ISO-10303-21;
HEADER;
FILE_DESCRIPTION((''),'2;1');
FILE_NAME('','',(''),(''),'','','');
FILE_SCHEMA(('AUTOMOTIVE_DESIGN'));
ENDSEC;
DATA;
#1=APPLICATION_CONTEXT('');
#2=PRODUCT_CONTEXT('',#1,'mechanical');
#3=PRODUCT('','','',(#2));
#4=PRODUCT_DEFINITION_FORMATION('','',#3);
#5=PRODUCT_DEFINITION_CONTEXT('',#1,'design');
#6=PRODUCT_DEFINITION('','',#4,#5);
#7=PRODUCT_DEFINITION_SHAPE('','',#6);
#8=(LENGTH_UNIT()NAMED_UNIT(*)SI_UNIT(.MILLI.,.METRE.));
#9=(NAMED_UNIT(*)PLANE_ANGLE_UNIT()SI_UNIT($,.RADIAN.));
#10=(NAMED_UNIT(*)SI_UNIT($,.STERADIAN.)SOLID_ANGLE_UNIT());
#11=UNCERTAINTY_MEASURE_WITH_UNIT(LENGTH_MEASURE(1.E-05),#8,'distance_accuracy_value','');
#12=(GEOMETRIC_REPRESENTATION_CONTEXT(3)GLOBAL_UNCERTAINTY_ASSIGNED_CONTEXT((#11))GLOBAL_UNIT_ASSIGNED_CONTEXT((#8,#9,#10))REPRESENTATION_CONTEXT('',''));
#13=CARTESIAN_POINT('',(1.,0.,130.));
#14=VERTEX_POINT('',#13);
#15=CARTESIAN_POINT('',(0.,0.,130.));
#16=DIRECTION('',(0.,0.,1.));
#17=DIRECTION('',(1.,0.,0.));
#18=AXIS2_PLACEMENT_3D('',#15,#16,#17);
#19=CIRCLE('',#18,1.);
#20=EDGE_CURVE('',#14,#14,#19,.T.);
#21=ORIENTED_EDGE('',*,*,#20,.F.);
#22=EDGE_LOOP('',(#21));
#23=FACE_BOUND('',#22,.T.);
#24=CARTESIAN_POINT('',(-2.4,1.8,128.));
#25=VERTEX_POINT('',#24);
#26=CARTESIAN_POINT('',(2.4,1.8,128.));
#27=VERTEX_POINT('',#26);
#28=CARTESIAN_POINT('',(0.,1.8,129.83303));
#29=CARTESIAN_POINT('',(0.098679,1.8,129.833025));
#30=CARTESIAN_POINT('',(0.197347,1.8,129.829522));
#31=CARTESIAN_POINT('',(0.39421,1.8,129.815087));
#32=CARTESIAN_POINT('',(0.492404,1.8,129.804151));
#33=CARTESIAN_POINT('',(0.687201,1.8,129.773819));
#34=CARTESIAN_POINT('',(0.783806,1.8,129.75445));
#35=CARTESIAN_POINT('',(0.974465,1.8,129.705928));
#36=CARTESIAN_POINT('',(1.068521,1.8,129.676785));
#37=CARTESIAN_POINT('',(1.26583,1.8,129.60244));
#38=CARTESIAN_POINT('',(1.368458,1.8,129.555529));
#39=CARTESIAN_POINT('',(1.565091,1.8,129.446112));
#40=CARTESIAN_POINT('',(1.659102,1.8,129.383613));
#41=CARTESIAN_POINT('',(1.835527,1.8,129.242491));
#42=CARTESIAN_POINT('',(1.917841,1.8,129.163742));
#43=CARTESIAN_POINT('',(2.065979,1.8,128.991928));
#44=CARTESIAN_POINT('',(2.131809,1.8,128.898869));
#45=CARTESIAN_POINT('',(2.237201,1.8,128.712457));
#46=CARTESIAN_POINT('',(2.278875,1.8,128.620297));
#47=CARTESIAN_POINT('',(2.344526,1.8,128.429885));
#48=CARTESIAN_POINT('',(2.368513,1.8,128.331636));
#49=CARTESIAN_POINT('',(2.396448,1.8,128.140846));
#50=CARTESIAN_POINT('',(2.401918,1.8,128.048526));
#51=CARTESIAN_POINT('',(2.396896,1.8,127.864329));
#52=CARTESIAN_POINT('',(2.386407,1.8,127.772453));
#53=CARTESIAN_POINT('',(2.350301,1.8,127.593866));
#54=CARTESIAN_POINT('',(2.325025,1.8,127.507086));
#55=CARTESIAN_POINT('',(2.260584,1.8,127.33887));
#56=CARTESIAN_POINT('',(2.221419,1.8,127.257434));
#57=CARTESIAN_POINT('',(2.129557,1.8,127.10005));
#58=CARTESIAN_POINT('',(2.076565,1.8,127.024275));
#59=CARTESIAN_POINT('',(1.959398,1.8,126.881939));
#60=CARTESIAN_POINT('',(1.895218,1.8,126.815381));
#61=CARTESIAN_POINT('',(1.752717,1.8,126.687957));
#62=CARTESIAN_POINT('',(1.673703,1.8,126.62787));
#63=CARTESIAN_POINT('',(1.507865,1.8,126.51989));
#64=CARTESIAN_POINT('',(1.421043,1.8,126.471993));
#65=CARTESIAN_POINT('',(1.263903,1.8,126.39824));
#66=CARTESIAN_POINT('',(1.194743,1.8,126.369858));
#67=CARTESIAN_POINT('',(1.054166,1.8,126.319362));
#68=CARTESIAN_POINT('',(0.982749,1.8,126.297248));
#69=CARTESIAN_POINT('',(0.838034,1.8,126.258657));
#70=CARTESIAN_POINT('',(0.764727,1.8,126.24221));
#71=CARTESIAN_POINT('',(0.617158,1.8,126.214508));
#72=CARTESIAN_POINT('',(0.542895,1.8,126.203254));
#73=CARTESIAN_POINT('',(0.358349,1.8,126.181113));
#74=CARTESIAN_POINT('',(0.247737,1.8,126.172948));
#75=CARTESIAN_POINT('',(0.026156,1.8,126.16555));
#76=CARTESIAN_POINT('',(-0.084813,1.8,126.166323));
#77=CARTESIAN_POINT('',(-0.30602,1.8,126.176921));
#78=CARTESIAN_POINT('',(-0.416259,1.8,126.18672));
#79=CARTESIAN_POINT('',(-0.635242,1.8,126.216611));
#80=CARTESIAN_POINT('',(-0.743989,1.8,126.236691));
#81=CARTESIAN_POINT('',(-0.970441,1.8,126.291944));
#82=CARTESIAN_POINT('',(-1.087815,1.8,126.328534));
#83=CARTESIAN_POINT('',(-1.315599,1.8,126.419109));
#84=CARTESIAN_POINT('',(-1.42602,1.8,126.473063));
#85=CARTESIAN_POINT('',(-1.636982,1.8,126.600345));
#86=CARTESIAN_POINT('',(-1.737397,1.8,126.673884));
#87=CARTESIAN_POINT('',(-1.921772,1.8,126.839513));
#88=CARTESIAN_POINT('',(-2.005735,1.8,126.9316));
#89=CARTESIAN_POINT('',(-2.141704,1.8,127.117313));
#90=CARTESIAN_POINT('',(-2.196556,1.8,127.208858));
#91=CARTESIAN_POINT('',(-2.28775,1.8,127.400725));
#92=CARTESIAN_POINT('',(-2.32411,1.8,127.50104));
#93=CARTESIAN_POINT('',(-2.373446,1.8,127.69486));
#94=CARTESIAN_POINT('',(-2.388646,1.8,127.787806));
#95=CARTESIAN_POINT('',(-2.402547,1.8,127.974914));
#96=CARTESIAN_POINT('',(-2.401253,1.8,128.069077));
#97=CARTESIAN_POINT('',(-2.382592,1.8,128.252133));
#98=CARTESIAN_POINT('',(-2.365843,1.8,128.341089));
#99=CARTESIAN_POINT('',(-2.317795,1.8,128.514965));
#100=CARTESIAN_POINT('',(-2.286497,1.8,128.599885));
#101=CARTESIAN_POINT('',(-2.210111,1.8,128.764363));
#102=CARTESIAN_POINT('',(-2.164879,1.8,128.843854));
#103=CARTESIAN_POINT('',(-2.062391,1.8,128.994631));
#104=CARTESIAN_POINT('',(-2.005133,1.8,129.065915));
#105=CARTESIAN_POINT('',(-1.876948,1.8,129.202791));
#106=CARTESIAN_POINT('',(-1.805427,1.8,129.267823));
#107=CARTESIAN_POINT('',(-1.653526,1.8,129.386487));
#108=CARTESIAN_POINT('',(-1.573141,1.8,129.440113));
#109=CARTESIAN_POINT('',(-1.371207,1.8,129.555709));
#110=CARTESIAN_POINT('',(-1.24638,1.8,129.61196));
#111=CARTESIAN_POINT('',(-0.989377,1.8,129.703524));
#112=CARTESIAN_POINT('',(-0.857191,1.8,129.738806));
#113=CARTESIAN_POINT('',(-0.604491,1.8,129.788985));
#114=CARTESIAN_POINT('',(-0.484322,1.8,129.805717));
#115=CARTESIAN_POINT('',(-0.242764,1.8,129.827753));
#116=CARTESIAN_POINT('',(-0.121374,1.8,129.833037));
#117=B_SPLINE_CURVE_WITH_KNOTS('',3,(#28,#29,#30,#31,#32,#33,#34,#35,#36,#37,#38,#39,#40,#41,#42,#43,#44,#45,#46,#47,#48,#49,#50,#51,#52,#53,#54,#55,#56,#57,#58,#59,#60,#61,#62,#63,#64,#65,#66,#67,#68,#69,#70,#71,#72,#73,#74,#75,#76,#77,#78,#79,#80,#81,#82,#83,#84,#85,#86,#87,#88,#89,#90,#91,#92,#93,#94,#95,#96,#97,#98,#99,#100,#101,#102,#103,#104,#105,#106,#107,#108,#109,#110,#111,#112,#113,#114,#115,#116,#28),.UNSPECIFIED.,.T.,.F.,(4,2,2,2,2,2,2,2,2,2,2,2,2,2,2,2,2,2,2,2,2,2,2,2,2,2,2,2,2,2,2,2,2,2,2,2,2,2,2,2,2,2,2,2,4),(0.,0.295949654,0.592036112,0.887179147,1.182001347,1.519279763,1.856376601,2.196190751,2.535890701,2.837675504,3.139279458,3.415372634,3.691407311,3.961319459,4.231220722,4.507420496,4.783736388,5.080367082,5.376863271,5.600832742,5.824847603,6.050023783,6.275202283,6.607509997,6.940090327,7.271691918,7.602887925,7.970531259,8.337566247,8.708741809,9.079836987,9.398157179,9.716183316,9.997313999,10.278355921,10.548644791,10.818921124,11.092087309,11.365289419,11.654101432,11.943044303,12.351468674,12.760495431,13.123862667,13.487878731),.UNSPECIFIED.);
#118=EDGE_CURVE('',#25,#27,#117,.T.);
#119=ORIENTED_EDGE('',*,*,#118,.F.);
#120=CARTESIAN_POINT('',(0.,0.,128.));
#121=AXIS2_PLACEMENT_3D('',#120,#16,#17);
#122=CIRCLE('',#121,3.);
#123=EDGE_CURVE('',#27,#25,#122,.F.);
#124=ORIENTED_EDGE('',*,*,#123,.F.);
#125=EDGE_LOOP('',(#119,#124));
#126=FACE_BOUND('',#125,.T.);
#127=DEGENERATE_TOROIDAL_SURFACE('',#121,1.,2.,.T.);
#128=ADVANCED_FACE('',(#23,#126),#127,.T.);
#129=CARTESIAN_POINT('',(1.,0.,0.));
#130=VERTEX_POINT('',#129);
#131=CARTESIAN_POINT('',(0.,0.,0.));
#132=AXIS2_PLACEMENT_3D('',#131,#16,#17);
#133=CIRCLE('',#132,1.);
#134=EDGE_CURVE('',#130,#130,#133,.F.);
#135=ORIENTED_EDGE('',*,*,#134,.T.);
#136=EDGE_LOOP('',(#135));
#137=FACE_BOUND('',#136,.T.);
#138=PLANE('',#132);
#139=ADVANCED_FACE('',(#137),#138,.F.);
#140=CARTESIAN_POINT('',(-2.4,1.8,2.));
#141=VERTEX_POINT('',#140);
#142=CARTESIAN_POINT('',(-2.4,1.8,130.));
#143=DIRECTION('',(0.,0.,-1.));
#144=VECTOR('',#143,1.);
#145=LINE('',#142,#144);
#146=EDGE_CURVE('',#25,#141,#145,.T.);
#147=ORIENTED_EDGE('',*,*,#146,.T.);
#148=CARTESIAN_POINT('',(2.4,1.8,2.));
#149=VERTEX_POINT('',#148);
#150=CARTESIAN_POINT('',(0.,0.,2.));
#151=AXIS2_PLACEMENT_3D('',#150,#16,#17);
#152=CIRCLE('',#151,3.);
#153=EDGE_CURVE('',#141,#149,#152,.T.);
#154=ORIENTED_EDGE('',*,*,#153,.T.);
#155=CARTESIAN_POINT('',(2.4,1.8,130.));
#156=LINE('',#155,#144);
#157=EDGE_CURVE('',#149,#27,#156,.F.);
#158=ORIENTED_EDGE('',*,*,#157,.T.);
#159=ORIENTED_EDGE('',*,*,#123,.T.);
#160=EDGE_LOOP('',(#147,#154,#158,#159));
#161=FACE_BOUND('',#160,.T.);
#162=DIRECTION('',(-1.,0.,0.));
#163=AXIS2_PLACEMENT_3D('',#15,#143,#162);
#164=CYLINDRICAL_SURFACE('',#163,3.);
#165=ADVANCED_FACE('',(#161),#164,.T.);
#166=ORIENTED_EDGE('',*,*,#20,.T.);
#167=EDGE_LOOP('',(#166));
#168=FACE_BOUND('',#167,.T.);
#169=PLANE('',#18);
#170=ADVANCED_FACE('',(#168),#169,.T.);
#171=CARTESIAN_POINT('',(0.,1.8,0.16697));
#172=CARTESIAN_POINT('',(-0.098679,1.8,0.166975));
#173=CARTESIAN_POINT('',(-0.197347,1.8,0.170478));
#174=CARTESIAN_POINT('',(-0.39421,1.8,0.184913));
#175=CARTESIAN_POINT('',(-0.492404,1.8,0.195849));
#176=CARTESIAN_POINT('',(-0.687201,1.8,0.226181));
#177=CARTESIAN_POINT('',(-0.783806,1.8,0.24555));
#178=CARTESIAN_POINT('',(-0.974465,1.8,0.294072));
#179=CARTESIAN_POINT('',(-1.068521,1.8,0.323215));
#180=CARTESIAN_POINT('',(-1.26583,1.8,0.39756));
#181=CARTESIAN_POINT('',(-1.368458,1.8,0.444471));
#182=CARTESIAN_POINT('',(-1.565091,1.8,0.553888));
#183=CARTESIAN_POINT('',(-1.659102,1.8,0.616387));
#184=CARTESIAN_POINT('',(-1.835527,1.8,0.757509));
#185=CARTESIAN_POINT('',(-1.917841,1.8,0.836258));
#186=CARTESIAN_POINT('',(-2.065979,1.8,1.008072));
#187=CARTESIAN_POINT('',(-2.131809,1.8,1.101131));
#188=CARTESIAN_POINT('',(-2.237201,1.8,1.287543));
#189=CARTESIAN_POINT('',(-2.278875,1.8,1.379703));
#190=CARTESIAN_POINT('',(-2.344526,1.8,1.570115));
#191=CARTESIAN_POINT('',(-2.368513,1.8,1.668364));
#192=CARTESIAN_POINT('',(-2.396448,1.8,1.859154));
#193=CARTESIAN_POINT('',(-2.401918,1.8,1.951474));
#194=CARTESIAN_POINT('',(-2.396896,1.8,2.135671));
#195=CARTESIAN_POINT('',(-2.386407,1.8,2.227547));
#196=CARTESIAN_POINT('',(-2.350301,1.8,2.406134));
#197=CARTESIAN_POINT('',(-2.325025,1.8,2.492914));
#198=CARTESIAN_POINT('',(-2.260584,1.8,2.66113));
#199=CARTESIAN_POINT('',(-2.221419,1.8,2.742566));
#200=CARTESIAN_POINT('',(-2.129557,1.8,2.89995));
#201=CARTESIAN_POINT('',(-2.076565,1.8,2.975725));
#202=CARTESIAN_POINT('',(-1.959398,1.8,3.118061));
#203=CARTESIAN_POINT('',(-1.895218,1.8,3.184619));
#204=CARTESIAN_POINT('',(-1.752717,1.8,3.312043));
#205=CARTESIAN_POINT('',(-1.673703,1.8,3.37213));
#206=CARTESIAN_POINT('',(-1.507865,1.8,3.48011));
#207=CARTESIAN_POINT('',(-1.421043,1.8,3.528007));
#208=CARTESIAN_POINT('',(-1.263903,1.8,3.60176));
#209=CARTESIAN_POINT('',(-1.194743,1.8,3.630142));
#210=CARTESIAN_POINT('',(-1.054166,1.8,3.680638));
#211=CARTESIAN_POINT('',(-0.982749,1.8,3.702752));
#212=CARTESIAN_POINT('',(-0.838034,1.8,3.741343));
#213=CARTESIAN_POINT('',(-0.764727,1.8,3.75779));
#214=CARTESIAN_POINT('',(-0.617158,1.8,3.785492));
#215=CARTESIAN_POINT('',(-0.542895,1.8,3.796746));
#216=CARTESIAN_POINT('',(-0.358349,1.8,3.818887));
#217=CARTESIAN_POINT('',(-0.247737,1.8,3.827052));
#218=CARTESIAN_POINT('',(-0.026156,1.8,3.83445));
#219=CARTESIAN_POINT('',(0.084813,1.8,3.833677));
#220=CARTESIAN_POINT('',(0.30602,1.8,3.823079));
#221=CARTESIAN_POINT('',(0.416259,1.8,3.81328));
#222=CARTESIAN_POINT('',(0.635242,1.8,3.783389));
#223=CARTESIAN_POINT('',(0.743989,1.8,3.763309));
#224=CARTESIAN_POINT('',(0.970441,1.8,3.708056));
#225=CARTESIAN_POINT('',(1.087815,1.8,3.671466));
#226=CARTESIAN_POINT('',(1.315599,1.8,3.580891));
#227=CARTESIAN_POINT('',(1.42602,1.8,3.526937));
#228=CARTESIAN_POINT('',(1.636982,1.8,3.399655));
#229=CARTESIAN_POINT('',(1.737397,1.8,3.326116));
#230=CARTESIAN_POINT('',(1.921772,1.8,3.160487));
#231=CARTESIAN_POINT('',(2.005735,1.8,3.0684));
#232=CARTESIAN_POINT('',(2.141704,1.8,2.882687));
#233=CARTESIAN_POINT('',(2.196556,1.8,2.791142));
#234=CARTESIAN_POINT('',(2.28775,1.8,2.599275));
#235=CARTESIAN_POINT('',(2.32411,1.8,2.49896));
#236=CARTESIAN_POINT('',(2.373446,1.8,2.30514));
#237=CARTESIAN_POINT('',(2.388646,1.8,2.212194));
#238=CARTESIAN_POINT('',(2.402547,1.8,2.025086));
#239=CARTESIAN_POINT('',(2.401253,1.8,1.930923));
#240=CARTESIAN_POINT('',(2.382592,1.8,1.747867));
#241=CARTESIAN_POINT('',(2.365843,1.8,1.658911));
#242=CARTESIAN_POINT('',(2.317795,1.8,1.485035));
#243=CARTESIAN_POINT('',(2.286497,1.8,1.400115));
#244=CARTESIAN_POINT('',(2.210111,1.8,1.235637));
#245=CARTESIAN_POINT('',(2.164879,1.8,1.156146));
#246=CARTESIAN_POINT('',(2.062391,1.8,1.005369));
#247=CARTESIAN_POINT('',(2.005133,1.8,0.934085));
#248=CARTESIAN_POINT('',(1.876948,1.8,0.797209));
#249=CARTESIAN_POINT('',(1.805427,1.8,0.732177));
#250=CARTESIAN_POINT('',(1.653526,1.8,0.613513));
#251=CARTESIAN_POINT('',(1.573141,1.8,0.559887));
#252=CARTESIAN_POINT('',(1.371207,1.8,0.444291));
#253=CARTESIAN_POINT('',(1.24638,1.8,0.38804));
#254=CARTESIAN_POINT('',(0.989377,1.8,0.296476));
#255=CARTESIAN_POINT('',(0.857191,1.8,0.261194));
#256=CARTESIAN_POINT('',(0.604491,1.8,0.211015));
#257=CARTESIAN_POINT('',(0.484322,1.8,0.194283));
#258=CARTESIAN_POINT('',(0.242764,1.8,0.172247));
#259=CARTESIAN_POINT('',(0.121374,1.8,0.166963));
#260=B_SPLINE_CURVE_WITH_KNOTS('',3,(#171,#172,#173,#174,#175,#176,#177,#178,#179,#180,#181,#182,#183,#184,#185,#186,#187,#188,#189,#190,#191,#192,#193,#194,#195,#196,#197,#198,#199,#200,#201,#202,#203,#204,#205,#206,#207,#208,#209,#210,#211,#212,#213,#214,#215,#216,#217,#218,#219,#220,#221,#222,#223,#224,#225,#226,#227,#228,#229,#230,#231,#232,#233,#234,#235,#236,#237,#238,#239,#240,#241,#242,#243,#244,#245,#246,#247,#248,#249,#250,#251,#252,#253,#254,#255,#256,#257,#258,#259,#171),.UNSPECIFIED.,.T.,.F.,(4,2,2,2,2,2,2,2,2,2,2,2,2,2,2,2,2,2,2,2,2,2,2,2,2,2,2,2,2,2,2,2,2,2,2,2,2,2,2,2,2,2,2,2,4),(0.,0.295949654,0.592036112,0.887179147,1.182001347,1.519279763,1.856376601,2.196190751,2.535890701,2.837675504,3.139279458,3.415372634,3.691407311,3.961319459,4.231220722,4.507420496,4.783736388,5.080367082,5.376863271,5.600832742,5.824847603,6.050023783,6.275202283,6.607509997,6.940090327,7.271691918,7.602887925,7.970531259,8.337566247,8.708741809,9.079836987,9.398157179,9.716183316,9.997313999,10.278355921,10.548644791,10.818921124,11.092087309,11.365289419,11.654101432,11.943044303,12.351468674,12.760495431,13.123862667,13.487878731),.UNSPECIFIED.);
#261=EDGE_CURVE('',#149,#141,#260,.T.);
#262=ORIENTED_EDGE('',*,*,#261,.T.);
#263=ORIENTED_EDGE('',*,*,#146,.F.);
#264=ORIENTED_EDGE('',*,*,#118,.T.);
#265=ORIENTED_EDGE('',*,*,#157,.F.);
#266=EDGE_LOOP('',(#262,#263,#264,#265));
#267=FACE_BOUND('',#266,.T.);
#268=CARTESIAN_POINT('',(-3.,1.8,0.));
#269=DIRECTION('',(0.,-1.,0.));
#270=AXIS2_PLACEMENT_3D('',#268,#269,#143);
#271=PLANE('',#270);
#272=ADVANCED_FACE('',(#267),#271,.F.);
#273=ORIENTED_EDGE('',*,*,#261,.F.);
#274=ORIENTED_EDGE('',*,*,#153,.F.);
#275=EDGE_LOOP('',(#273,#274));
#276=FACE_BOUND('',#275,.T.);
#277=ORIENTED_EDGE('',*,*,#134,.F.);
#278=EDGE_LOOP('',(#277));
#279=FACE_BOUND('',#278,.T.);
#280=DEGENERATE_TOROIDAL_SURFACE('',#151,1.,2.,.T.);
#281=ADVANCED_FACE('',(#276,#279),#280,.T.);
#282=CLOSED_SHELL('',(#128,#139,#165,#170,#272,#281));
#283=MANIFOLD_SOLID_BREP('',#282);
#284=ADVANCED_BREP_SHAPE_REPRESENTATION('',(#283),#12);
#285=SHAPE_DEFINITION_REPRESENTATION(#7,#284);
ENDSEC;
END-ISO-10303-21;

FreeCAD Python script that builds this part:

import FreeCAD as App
import Part
import Sketcher

V = App.Vector
Q = App.Units.Quantity


def edges_at(feature, points):
    """Names of the edges that pass closest to the given points."""
    edges = feature.Shape.Edges
    near = lambda p: min(range(len(edges)), key=lambda i: edges[i].distToShape(Part.Vertex(*p))[0])
    return sorted({f"Edge{near(p) + 1}" for p in points})

doc = App.newDocument("Part")
body = doc.addObject("PartDesign::Body", "Body")

sketch1 = body.newObject("Sketcher::SketchObject", "Sketch")
sketch1.AttachmentSupport = (doc.getObject("XY_Plane"), [""])
sketch1.MapMode = "FlatFace"
sketch1.addGeometry(Part.Circle(V(0, 0, 0), V(0, 0, 1), 3), False)
sketch1.addConstraint(Sketcher.Constraint("Coincident", 0, 3, -1, 1))
sketch1.addConstraint(Sketcher.Constraint("Diameter", 0, Q("6 mm")))
pad1 = body.newObject("PartDesign::Pad", "Pad")
pad1.Profile = sketch1
pad1.Length = 130
doc.recompute()

fillet = body.newObject("PartDesign::Fillet", "Fillet")
fillet.Base = (pad1, edges_at(pad1, [(-3, 0, 0), (-3, 0, 130)]))
fillet.Radius = 2

sketch2 = body.newObject("Sketcher::SketchObject", "Sketch001")
sketch2.AttachmentSupport = (doc.getObject("XY_Plane"), [""])
sketch2.MapMode = "FlatFace"
sketch2.AttachmentOffset = App.Placement(V(0, 0, 130), App.Rotation())
sketch2.addGeometry(Part.LineSegment(V(-3, 3, 0), V(-3, 1.8, 0)), False)
sketch2.addGeometry(Part.LineSegment(V(-3, 1.8, 0), V(3, 1.8, 0)), False)
sketch2.addGeometry(Part.LineSegment(V(3, 1.8, 0), V(3, 3, 0)), False)
sketch2.addGeometry(Part.LineSegment(V(3, 3, 0), V(-3, 3, 0)), False)
sketch2.addConstraint(Sketcher.Constraint("Coincident", 0, 2, 1, 1))
sketch2.addConstraint(Sketcher.Constraint("Coincident", 1, 2, 2, 1))
sketch2.addConstraint(Sketcher.Constraint("Coincident", 2, 2, 3, 1))
sketch2.addConstraint(Sketcher.Constraint("Coincident", 3, 2, 0, 1))
sketch2.addConstraint(Sketcher.Constraint("Vertical", 0))
sketch2.addConstraint(Sketcher.Constraint("Horizontal", 1))
sketch2.addConstraint(Sketcher.Constraint("Vertical", 2))
sketch2.addConstraint(Sketcher.Constraint("Horizontal", 3))
sketch2.addConstraint(Sketcher.Constraint("DistanceX", 1, 1, 1, 2, Q("6 mm")))
sketch2.addConstraint(Sketcher.Constraint("DistanceY", 0, 2, 0, 1, Q("1.2 mm")))
sketch2.addConstraint(Sketcher.Constraint("DistanceX", 0, 2, -1, 1, Q("3 mm")))
sketch2.addConstraint(Sketcher.Constraint("DistanceY", -1, 1, 2, 2, Q("3 mm")))
pocket1 = body.newObject("PartDesign::Pocket", "Pocket")
pocket1.Profile = sketch2
pocket1.Type = "ThroughAll"

doc.recompute()
